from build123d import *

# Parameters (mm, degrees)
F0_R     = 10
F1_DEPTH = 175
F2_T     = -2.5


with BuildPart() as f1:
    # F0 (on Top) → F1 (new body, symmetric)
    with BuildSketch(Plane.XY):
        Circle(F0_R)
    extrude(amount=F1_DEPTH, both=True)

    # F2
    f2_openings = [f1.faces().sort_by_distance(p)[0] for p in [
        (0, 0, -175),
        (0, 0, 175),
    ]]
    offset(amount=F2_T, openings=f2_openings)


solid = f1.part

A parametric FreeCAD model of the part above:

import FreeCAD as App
import Part
import Sketcher

V = App.Vector


def faces_at(feature, points):
    """Names of the faces that lie closest to the given points."""
    faces = feature.Shape.Faces
    near = lambda p: min(range(len(faces)), key=lambda i: faces[i].distToShape(Part.Vertex(*p))[0])
    return sorted({f"Face{near(p) + 1}" for p in points})

doc = App.newDocument("Part")
params = doc.addObject("Spreadsheet::Sheet", "Params")
for row, (alias, value) in enumerate([
    ("sketch1_diameter", "20 mm"),
    ("pad1_length", "350 mm"),
    ("thickness_wall", "2.5 mm"),
], start=1):
    params.set(f"A{row}", alias)
    params.set(f"B{row}", "=" + value)
    params.setAlias(f"B{row}", alias)

body = doc.addObject("PartDesign::Body", "Body")

# Sketch on XY plane
sketch1 = body.newObject("Sketcher::SketchObject", "Sketch")
sketch1.AttachmentSupport = (doc.getObject("XY_Plane"), [""])
sketch1.MapMode = "FlatFace"
sketch1.addGeometry(Part.Circle(V(0, 0, 0), V(0, 0, 1), 10), False)
sketch1.addConstraint(Sketcher.Constraint("Coincident", 0, 3, -1, 1))
sketch1.addConstraint(Sketcher.Constraint("Diameter", 0, 20.0))
sketch1.setExpression("Constraints[1]", "Params.sketch1_diameter")
pad1 = body.newObject("PartDesign::Pad", "Pad")
pad1.Profile = sketch1
pad1.setExpression("Length", "Params.pad1_length")
pad1.Midplane = True
doc.recompute()

thickness = body.newObject("PartDesign::Thickness", "Thickness")
thickness.Base = (pad1, faces_at(pad1, [(0, 0, -175), (0, 0, 175)]))
thickness.setExpression("Value", "Params.thickness_wall")
thickness.Reversed = True
thickness.Join = "Arc"

doc.recompute()
